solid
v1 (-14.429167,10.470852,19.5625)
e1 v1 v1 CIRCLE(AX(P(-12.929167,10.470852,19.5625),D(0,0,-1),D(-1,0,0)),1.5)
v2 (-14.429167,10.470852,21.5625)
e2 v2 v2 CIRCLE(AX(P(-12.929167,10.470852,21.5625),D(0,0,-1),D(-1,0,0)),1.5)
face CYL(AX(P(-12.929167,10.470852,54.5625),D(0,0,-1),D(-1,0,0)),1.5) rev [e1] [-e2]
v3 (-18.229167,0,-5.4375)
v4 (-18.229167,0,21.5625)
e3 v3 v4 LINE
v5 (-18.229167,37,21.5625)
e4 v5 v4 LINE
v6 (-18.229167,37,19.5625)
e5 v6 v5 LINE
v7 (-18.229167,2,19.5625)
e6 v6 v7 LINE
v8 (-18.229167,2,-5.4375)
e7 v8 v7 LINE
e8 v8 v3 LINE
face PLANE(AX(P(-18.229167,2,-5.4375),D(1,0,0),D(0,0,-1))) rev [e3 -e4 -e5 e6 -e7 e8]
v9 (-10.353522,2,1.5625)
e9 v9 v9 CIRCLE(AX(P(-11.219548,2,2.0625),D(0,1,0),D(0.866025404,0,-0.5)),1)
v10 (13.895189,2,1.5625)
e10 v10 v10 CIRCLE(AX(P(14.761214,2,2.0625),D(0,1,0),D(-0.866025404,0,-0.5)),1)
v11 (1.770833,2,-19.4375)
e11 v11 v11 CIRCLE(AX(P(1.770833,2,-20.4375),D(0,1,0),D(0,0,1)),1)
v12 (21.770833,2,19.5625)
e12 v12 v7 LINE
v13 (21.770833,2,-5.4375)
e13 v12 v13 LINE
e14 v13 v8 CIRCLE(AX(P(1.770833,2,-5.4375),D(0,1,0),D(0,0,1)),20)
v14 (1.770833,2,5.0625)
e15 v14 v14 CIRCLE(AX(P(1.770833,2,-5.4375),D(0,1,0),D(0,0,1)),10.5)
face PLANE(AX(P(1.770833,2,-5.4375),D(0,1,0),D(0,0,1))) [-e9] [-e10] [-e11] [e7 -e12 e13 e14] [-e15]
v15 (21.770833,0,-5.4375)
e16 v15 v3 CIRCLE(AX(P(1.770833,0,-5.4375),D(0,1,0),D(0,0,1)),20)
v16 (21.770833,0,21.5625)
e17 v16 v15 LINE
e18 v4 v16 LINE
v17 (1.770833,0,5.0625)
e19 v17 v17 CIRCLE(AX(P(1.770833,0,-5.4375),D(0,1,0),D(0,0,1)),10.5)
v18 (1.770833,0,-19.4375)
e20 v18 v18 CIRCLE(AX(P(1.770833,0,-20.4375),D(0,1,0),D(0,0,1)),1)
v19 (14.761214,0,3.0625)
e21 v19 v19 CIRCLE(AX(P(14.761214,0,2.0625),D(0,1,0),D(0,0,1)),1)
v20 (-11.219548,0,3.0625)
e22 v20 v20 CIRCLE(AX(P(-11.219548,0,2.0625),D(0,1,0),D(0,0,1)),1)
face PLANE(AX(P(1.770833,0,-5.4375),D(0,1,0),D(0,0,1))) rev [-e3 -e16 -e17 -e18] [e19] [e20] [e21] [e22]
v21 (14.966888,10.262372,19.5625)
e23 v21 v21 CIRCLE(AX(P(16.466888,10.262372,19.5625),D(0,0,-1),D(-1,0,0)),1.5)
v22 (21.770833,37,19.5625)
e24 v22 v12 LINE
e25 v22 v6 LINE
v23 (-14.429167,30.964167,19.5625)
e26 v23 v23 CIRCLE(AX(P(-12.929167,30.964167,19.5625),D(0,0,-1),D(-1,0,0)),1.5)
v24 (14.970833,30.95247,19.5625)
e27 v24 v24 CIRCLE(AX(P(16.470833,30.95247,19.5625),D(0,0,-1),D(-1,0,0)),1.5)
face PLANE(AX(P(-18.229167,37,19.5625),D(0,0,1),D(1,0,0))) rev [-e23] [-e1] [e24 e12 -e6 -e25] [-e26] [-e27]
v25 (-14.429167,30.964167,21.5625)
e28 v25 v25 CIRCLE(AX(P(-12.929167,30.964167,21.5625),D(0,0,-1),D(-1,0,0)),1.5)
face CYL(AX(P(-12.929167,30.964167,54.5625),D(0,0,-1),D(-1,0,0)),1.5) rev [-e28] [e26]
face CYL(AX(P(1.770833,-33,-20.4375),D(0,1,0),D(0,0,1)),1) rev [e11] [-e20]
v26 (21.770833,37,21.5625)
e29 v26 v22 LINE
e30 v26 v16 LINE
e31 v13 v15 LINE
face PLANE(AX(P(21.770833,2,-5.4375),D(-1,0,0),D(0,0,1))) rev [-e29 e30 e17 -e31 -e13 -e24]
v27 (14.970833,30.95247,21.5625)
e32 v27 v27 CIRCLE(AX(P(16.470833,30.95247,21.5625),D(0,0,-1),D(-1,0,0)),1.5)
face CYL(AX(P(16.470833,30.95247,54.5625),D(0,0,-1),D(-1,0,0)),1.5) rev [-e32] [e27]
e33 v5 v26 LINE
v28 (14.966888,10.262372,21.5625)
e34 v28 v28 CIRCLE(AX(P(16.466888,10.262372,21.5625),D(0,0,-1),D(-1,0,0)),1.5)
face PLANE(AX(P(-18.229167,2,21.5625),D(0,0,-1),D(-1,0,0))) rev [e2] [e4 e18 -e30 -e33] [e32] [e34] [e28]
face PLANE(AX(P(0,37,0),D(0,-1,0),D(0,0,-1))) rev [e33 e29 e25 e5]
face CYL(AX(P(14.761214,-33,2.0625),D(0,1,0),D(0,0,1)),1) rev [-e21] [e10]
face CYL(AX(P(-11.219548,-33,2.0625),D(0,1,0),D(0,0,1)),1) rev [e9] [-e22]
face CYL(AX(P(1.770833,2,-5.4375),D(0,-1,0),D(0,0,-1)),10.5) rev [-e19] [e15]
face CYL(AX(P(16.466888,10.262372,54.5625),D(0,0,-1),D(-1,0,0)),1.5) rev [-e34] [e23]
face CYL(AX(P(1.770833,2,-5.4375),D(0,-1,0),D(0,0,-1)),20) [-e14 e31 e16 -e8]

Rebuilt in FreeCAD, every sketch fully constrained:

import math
import FreeCAD as App
import Part
import Sketcher
Q = App.Units.Quantity

doc = App.newDocument("Part")
params = doc.addObject("Spreadsheet::Sheet", "Params")
for row, (alias, value) in enumerate([
    ("sketch1_diameter", "21 mm"),
    ("sketch1_radius", "20 mm"),
    ("sketch1_height", "27 mm"),
    ("pad1_length", "2 mm"),
    ("sketch2_width", "40 mm"),
    ("sketch2_height", "2 mm"),
    ("pad2_length", "35 mm"),
    ("sketch3_radius", "1 mm"),
    ("pocket1_length", "35 mm"),
    ("sketch4_diameter", "3 mm"),
    ("pocket2_length", "35 mm"),
    ("sketch5_diameter", "3 mm"),
    ("pocket3_length", "35 mm"),
], start=1):
    params.set(f"A{row}", alias)
    params.set(f"B{row}", "=" + value)
    params.setAlias(f"B{row}", alias)

body = doc.addObject("PartDesign::Body", "Body")

# Sketch on XZ plane
sketch1 = doc.addObject("Sketcher::SketchObject", "Sketch")
body.addObject(sketch1)
sketch1.AttachmentSupport = (doc.XZ_Plane, [""])
sketch1.MapMode = "FlatFace"
sketch1.addGeometry(Part.LineSegment(App.Vector(-18, -5, 0), App.Vector(-18, 22, 0)), False)
sketch1.addGeometry(Part.LineSegment(App.Vector(-18, 22, 0), App.Vector(22, 22, 0)), False)
sketch1.addGeometry(Part.LineSegment(App.Vector(22, 22, 0), App.Vector(22, -5, 0)), False)
sketch1.addGeometry(Part.ArcOfCircle(Part.Circle(App.Vector(2, -5, 0), App.Vector(0, 0, 1), 20), math.radians(180), math.radians(360)), False)
sketch1.addGeometry(Part.Circle(App.Vector(2, -5, 0), App.Vector(0, 0, 1), 10), False)
sketch1.addConstraint(Sketcher.Constraint("Coincident", 0, 2, 1, 1))
sketch1.addConstraint(Sketcher.Constraint("Coincident", 1, 2, 2, 1))
sketch1.addConstraint(Sketcher.Constraint("Tangent", 2, 2, 3, 2))
sketch1.addConstraint(Sketcher.Constraint("Tangent", 3, 1, 0, 1))
sketch1.addConstraint(Sketcher.Constraint("Vertical", 0))
sketch1.addConstraint(Sketcher.Constraint("Horizontal", 1))
sketch1.addConstraint(Sketcher.Constraint("Vertical", 2))
sketch1.addConstraint(Sketcher.Constraint("Coincident", 4, 3, 3, 3))
sketch1.addConstraint(Sketcher.Constraint("Diameter", 4, Q("21 mm")))
sketch1.addConstraint(Sketcher.Constraint("Radius", 3, Q("20 mm")))
sketch1.addConstraint(Sketcher.Constraint("DistanceY", 0, 1, 0, 2, Q("27 mm")))
sketch1.addConstraint(Sketcher.Constraint("DistanceY", 3, 3, -1, 1, Q("5.4375 mm")))
sketch1.addConstraint(Sketcher.Constraint("DistanceX", -1, 1, 3, 3, Q("1.770833 mm")))
sketch1.setExpression("Constraints[8]", "Params.sketch1_diameter")
sketch1.setExpression("Constraints[9]", "Params.sketch1_radius")
sketch1.setExpression("Constraints[10]", "Params.sketch1_height")
pad1 = doc.addObject("PartDesign::Pad", "Pad")
body.addObject(pad1)
pad1.Profile = sketch1
pad1.setExpression("Length", "Params.pad1_length")
pad1.Reversed = True

# Sketch on XZ plane
sketch2 = doc.addObject("Sketcher::SketchObject", "Sketch001")
body.addObject(sketch2)
sketch2.AttachmentSupport = (doc.XZ_Plane, [""])
sketch2.MapMode = "FlatFace"
sketch2.AttachmentOffset = App.Placement(App.Vector(0, 0, -2), App.Rotation())
sketch2.addGeometry(Part.LineSegment(App.Vector(-18.2, 19.6, 0), App.Vector(-18.2, 21.6, 0)), False)
sketch2.addGeometry(Part.LineSegment(App.Vector(-18.2, 21.6, 0), App.Vector(21.8, 21.6, 0)), False)
sketch2.addGeometry(Part.LineSegment(App.Vector(21.8, 21.6, 0), App.Vector(21.8, 19.6, 0)), False)
sketch2.addGeometry(Part.LineSegment(App.Vector(21.8, 19.6, 0), App.Vector(-18.2, 19.6, 0)), False)
sketch2.addConstraint(Sketcher.Constraint("Coincident", 0, 2, 1, 1))
sketch2.addConstraint(Sketcher.Constraint("Coincident", 1, 2, 2, 1))
sketch2.addConstraint(Sketcher.Constraint("Coincident", 2, 2, 3, 1))
sketch2.addConstraint(Sketcher.Constraint("Coincident", 3, 2, 0, 1))
sketch2.addConstraint(Sketcher.Constraint("Vertical", 0))
sketch2.addConstraint(Sketcher.Constraint("Horizontal", 1))
sketch2.addConstraint(Sketcher.Constraint("Vertical", 2))
sketch2.addConstraint(Sketcher.Constraint("Horizontal", 3))
sketch2.addConstraint(Sketcher.Constraint("DistanceX", 1, 1, 1, 2, Q("40 mm")))
sketch2.addConstraint(Sketcher.Constraint("DistanceY", 0, 1, 0, 2, Q("2 mm")))
sketch2.addConstraint(Sketcher.Constraint("DistanceY", -1, 1, 0, 2, Q("21.5625 mm")))
sketch2.addConstraint(Sketcher.Constraint("DistanceX", 0, 2, -1, 1, Q("18.229167 mm")))
sketch2.setExpression("Constraints[8]", "Params.sketch2_width")
sketch2.setExpression("Constraints[9]", "Params.sketch2_height")
pad2 = doc.addObject("PartDesign::Pad", "Pad001")
body.addObject(pad2)
pad2.Profile = sketch2
pad2.setExpression("Length", "Params.pad2_length")
pad2.Reversed = True

# Sketch on XZ plane
sketch3 = doc.addObject("Sketcher::SketchObject", "Sketch002")
body.addObject(sketch3)
sketch3.AttachmentSupport = (doc.XZ_Plane, [""])
sketch3.MapMode = "FlatFace"
sketch3.AttachmentOffset = App.Placement(App.Vector(0, 0, -2), App.Rotation())
sketch3.addGeometry(Part.ArcOfCircle(Part.Circle(App.Vector(1.8, -20.4, 0), App.Vector(0, 0, 1), 1), math.radians(90), math.radians(270)), False)
sketch3.addGeometry(Part.ArcOfCircle(Part.Circle(App.Vector(1.8, -20.4, 0), App.Vector(0, 0, 1), 1), math.radians(0), math.radians(90)), False)
sketch3.addGeometry(Part.ArcOfCircle(Part.Circle(App.Vector(1.8, -20.4, 0), App.Vector(0, 0, 1), 1), math.radians(-90), math.radians(0)), False)
sketch3.addConstraint(Sketcher.Constraint("Tangent", 0, 1, 1, 2))
sketch3.addConstraint(Sketcher.Constraint("Tangent", 1, 1, 2, 2))
sketch3.addConstraint(Sketcher.Constraint("Tangent", 2, 1, 0, 2))
sketch3.addConstraint(Sketcher.Constraint("Horizontal", 2, 3, 1, 1))
sketch3.addConstraint(Sketcher.Constraint("Vertical", 2, 3, 0, 1))
sketch3.addConstraint(Sketcher.Constraint("Vertical", 0, 1, 2, 1))
sketch3.addConstraint(Sketcher.Constraint("Radius", 0, Q("1 mm")))
sketch3.addConstraint(Sketcher.Constraint("DistanceY", 0, 3, -1, 1, Q("20.4375 mm")))
sketch3.addConstraint(Sketcher.Constraint("DistanceX", -1, 1, 0, 3, Q("1.770833 mm")))
sketch3.setExpression("Constraints[6]", "Params.sketch3_radius")
pocket1 = doc.addObject("PartDesign::Pocket", "Pocket")
body.addObject(pocket1)
pocket1.Profile = sketch3
pocket1.setExpression("Length", "Params.pocket1_length")
pocket1.Reversed = True
doc.recompute()

datumline = doc.addObject("PartDesign::Line", "DatumLine")
body.addObject(datumline)
datumline.Placement = App.Placement(App.Vector(1.770833, 0, -5.4375), App.Rotation(App.Vector(0, 0, 1), App.Vector(0, 1, 0)))
polarpattern = doc.addObject("PartDesign::PolarPattern", "PolarPattern")
body.addObject(polarpattern)
polarpattern.Originals = [pocket1]
polarpattern.Axis = (datumline, [""])
polarpattern.Angle = 360
polarpattern.Occurrences = 3
body.Tip = polarpattern

# Sketch on XY plane
sketch4 = doc.addObject("Sketcher::SketchObject", "Sketch003")
body.addObject(sketch4)
sketch4.AttachmentSupport = (doc.XY_Plane, [""])
sketch4.MapMode = "FlatFace"
sketch4.AttachmentOffset = App.Placement(App.Vector(0, 0, 19.5625), App.Rotation())
sketch4.addGeometry(Part.Circle(App.Vector(16.5, 10.3, 0), App.Vector(0, 0, 1), 1.5), False)
sketch4.addGeometry(Part.Circle(App.Vector(16.5, 31, 0), App.Vector(0, 0, 1), 1.5), False)
sketch4.addConstraint(Sketcher.Constraint("Equal", 0, 1))
sketch4.addConstraint(Sketcher.Constraint("Diameter", 0, Q("3 mm")))
sketch4.addConstraint(Sketcher.Constraint("DistanceY", 0, 3, 1, 3, Q("20.690098 mm")))
sketch4.addConstraint(Sketcher.Constraint("DistanceX", -1, 1, 0, 3, Q("16.466888 mm")))
sketch4.addConstraint(Sketcher.Constraint("DistanceY", -1, 1, 0, 3, Q("10.262372 mm")))
sketch4.addConstraint(Sketcher.Constraint("DistanceX", -1, 1, 1, 3, Q("16.470833 mm")))
sketch4.setExpression("Constraints[1]", "Params.sketch4_diameter")
pocket2 = doc.addObject("PartDesign::Pocket", "Pocket001")
body.addObject(pocket2)
pocket2.Profile = sketch4
pocket2.setExpression("Length", "Params.pocket2_length")
pocket2.Reversed = True

# Sketch on XY plane
sketch5 = doc.addObject("Sketcher::SketchObject", "Sketch004")
body.addObject(sketch5)
sketch5.AttachmentSupport = (doc.XY_Plane, [""])
sketch5.MapMode = "FlatFace"
sketch5.AttachmentOffset = App.Placement(App.Vector(0, 0, 19.5625), App.Rotation())
sketch5.addGeometry(Part.Circle(App.Vector(-12.9, 31, 0), App.Vector(0, 0, 1), 1.5), False)
sketch5.addGeometry(Part.Circle(App.Vector(-12.9, 10.5, 0), App.Vector(0, 0, 1), 1.5), False)
sketch5.addConstraint(Sketcher.Constraint("Equal", 0, 1))
sketch5.addConstraint(Sketcher.Constraint("Vertical", 0, 3, 1, 3))
sketch5.addConstraint(Sketcher.Constraint("Diameter", 0, Q("3 mm")))
sketch5.addConstraint(Sketcher.Constraint("DistanceY", -1, 1, 1, 3, Q("10.470852 mm")))
sketch5.addConstraint(Sketcher.Constraint("DistanceX", 0, 3, -1, 1, Q("12.929167 mm")))
sketch5.addConstraint(Sketcher.Constraint("DistanceY", -1, 1, 0, 3, Q("30.964167 mm")))
sketch5.setExpression("Constraints[2]", "Params.sketch5_diameter")
pocket3 = doc.addObject("PartDesign::Pocket", "Pocket002")
body.addObject(pocket3)
pocket3.Profile = sketch5
pocket3.setExpression("Length", "Params.pocket3_length")
pocket3.Reversed = True

doc.recompute()
